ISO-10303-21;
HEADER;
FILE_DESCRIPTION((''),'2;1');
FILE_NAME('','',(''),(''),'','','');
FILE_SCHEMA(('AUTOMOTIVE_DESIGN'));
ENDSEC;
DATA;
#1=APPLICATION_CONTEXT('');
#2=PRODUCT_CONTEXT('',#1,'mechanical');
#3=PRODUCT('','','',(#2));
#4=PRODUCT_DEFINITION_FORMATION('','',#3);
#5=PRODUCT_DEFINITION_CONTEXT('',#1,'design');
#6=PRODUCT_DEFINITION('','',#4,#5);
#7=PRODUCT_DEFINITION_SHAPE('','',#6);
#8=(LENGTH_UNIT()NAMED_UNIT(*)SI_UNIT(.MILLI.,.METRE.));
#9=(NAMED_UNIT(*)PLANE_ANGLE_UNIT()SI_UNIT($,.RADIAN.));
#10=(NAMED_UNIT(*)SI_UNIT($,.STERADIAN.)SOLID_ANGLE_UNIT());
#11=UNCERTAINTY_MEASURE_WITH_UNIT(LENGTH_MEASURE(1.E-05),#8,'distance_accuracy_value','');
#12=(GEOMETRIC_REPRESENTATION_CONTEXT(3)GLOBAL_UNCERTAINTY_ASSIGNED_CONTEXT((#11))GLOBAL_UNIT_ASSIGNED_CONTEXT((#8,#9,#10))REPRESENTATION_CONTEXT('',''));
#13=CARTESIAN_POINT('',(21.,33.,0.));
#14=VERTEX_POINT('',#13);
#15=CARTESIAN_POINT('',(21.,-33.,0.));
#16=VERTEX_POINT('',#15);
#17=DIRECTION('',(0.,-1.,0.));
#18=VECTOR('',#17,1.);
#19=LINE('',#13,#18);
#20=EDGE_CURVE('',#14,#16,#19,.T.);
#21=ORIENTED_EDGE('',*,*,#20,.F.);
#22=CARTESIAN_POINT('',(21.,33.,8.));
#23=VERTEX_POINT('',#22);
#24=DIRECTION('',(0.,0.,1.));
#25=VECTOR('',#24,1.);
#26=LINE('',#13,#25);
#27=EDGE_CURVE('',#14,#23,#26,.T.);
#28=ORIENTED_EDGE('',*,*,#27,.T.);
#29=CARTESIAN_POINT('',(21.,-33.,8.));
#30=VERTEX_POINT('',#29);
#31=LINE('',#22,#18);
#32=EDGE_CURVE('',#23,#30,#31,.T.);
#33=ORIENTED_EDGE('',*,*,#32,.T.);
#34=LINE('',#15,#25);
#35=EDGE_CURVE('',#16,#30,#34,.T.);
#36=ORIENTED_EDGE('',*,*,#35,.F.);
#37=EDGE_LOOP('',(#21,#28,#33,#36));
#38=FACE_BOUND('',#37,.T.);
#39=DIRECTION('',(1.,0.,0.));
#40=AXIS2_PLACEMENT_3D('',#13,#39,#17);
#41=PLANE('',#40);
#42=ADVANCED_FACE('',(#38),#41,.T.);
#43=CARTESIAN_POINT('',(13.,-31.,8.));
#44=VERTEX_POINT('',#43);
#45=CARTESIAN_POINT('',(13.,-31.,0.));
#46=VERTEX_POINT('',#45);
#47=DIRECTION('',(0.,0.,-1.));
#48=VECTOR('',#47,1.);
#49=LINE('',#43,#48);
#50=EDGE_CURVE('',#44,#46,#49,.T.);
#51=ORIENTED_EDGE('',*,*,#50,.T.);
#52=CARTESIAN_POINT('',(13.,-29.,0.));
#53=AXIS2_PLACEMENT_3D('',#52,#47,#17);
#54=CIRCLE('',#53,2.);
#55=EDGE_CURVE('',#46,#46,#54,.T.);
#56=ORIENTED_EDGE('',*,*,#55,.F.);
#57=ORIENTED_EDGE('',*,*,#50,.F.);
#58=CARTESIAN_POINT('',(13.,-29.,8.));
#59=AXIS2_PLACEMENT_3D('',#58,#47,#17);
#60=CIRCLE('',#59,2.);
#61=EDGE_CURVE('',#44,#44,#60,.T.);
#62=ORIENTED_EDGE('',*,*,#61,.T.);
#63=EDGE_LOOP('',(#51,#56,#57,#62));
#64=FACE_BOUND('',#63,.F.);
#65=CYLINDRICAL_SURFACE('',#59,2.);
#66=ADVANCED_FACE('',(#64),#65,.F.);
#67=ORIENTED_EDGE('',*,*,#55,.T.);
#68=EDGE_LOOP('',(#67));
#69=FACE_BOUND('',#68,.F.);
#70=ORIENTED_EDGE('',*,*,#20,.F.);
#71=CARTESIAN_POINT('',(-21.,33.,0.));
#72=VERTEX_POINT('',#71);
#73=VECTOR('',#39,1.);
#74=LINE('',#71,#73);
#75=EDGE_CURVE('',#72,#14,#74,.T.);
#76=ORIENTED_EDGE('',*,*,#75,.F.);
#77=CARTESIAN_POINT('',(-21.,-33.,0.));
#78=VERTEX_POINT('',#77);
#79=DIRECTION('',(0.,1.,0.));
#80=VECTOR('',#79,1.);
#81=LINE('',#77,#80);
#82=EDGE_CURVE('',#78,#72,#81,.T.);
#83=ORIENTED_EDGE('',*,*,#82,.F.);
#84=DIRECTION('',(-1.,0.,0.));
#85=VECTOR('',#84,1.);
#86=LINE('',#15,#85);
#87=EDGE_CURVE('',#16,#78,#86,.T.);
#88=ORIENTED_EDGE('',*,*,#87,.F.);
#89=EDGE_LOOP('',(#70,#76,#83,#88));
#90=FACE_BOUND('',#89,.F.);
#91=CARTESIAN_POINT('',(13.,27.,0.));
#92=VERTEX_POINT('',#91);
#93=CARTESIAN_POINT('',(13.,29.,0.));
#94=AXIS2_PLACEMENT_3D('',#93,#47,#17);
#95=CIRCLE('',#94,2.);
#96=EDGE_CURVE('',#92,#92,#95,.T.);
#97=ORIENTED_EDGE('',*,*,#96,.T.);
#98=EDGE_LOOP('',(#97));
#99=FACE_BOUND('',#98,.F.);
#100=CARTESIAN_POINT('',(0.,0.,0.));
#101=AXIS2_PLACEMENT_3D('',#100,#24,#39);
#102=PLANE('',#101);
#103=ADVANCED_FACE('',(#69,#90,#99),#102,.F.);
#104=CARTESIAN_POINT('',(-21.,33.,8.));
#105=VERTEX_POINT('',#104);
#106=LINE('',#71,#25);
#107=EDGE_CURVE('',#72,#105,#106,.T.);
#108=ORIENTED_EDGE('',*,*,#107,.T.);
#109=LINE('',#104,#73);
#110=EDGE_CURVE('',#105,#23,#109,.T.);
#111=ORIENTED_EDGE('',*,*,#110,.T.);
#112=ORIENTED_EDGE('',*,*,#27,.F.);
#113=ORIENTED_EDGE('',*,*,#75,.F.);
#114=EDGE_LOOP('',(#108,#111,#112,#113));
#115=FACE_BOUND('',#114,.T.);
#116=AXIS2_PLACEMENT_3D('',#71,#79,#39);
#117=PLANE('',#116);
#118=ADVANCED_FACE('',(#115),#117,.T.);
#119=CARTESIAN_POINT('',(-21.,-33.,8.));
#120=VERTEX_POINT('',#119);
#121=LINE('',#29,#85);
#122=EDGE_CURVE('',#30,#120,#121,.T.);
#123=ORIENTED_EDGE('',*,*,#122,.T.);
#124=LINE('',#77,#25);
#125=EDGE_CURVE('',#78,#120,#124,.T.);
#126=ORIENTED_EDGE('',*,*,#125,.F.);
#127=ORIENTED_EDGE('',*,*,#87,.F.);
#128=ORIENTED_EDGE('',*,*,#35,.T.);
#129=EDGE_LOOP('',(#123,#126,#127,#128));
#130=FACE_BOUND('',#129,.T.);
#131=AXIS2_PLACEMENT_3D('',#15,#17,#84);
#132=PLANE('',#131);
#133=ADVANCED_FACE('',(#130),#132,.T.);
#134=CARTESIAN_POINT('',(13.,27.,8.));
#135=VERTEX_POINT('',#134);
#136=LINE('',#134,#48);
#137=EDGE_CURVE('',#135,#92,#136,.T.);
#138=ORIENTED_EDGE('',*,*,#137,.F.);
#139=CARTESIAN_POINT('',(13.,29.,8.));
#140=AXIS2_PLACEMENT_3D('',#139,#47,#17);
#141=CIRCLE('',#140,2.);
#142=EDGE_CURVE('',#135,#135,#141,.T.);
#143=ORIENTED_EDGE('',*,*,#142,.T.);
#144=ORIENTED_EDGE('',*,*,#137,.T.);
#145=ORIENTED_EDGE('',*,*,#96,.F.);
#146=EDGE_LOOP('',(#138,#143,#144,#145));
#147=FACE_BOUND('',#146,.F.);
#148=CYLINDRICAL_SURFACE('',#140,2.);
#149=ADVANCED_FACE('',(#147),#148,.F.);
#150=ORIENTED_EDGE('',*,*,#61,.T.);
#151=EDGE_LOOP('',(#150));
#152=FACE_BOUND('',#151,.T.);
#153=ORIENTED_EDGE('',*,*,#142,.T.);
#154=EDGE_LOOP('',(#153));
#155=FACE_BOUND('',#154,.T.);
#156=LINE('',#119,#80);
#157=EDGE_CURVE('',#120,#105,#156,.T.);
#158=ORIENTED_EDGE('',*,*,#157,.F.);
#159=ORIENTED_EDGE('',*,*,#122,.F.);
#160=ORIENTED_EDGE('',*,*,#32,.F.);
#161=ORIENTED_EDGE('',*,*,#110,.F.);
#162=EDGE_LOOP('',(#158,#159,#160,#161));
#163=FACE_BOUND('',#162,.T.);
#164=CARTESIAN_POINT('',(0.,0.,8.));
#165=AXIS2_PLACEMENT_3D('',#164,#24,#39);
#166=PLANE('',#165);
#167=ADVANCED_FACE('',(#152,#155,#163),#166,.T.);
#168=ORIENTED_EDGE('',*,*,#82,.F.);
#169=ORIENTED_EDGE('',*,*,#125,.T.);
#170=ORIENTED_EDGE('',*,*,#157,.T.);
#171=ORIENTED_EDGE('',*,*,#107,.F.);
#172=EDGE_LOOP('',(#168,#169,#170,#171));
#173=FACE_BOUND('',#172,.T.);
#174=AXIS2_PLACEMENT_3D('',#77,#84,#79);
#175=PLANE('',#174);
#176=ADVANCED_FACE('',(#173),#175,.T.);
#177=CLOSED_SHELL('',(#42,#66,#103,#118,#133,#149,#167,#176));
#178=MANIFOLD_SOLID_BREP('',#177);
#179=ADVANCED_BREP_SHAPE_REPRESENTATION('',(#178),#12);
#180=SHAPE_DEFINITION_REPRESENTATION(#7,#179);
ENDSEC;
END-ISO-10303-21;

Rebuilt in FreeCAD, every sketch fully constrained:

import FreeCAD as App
import Part
import Sketcher

doc = App.newDocument("Part")
body = doc.addObject("PartDesign::Body", "Body")

sketch1 = body.newObject("Sketcher::SketchObject", "Sketch")
sketch1.AttachmentSupport = (doc.getObject("XY_Plane"), [""])
sketch1.MapMode = "FlatFace"
sketch1.addGeometry([
    Part.LineSegment(App.Vector(21, 33, 0), App.Vector(-21, 33, 0)),
    Part.LineSegment(App.Vector(-21, 33, 0), App.Vector(-21, -33, 0)),
    Part.LineSegment(App.Vector(-21, -33, 0), App.Vector(21, -33, 0)),
    Part.LineSegment(App.Vector(21, -33, 0), App.Vector(21, 33, 0)),
], False)
sketch1.addConstraint([
    Sketcher.Constraint("Coincident", 0, 2, 1, 1),
    Sketcher.Constraint("Coincident", 1, 2, 2, 1),
    Sketcher.Constraint("Coincident", 2, 2, 3, 1),
    Sketcher.Constraint("Coincident", 3, 2, 0, 1),
    Sketcher.Constraint("Horizontal", 0),
    Sketcher.Constraint("Vertical", 1),
    Sketcher.Constraint("Horizontal", 2),
    Sketcher.Constraint("Vertical", 3),
    Sketcher.Constraint("Symmetric", 0, 2, 2, 2, -1, 1),
    Sketcher.Constraint("DistanceX", 0, 2, 0, 1, 42.0),
    Sketcher.Constraint("DistanceY", 1, 2, 1, 1, 66.0),
])
pad1 = body.newObject("PartDesign::Pad", "Pad")
pad1.Profile = sketch1
pad1.Length = 8

sketch2 = body.newObject("Sketcher::SketchObject", "Sketch001")
sketch2.AttachmentSupport = (doc.getObject("XY_Plane"), [""])
sketch2.MapMode = "FlatFace"
sketch2.AttachmentOffset = App.Placement(App.Vector(0, 0, 8), App.Rotation())
sketch2.addGeometry([
    Part.Circle(App.Vector(13, -29, 0), App.Vector(0, 0, 1), 2),
    Part.Circle(App.Vector(13, 29, 0), App.Vector(0, 0, 1), 2),
], False)
sketch2.addConstraint([
    Sketcher.Constraint("Equal", 0, 1),
    Sketcher.Constraint("Symmetric", 0, 3, 1, 3, -1),
    Sketcher.Constraint("Diameter", 0, 4.0),
    Sketcher.Constraint("DistanceX", -1, 1, 0, 3, 13.0),
    Sketcher.Constraint("DistanceY", 0, 3, -1, 1, 29.0),
])
doc.recompute()
hole = body.newObject("PartDesign::Hole", "Hole")
hole.Profile = sketch2
hole.ThreadType = "None"
hole.Diameter = 4
hole.DepthType = "ThroughAll"

doc.recompute()
